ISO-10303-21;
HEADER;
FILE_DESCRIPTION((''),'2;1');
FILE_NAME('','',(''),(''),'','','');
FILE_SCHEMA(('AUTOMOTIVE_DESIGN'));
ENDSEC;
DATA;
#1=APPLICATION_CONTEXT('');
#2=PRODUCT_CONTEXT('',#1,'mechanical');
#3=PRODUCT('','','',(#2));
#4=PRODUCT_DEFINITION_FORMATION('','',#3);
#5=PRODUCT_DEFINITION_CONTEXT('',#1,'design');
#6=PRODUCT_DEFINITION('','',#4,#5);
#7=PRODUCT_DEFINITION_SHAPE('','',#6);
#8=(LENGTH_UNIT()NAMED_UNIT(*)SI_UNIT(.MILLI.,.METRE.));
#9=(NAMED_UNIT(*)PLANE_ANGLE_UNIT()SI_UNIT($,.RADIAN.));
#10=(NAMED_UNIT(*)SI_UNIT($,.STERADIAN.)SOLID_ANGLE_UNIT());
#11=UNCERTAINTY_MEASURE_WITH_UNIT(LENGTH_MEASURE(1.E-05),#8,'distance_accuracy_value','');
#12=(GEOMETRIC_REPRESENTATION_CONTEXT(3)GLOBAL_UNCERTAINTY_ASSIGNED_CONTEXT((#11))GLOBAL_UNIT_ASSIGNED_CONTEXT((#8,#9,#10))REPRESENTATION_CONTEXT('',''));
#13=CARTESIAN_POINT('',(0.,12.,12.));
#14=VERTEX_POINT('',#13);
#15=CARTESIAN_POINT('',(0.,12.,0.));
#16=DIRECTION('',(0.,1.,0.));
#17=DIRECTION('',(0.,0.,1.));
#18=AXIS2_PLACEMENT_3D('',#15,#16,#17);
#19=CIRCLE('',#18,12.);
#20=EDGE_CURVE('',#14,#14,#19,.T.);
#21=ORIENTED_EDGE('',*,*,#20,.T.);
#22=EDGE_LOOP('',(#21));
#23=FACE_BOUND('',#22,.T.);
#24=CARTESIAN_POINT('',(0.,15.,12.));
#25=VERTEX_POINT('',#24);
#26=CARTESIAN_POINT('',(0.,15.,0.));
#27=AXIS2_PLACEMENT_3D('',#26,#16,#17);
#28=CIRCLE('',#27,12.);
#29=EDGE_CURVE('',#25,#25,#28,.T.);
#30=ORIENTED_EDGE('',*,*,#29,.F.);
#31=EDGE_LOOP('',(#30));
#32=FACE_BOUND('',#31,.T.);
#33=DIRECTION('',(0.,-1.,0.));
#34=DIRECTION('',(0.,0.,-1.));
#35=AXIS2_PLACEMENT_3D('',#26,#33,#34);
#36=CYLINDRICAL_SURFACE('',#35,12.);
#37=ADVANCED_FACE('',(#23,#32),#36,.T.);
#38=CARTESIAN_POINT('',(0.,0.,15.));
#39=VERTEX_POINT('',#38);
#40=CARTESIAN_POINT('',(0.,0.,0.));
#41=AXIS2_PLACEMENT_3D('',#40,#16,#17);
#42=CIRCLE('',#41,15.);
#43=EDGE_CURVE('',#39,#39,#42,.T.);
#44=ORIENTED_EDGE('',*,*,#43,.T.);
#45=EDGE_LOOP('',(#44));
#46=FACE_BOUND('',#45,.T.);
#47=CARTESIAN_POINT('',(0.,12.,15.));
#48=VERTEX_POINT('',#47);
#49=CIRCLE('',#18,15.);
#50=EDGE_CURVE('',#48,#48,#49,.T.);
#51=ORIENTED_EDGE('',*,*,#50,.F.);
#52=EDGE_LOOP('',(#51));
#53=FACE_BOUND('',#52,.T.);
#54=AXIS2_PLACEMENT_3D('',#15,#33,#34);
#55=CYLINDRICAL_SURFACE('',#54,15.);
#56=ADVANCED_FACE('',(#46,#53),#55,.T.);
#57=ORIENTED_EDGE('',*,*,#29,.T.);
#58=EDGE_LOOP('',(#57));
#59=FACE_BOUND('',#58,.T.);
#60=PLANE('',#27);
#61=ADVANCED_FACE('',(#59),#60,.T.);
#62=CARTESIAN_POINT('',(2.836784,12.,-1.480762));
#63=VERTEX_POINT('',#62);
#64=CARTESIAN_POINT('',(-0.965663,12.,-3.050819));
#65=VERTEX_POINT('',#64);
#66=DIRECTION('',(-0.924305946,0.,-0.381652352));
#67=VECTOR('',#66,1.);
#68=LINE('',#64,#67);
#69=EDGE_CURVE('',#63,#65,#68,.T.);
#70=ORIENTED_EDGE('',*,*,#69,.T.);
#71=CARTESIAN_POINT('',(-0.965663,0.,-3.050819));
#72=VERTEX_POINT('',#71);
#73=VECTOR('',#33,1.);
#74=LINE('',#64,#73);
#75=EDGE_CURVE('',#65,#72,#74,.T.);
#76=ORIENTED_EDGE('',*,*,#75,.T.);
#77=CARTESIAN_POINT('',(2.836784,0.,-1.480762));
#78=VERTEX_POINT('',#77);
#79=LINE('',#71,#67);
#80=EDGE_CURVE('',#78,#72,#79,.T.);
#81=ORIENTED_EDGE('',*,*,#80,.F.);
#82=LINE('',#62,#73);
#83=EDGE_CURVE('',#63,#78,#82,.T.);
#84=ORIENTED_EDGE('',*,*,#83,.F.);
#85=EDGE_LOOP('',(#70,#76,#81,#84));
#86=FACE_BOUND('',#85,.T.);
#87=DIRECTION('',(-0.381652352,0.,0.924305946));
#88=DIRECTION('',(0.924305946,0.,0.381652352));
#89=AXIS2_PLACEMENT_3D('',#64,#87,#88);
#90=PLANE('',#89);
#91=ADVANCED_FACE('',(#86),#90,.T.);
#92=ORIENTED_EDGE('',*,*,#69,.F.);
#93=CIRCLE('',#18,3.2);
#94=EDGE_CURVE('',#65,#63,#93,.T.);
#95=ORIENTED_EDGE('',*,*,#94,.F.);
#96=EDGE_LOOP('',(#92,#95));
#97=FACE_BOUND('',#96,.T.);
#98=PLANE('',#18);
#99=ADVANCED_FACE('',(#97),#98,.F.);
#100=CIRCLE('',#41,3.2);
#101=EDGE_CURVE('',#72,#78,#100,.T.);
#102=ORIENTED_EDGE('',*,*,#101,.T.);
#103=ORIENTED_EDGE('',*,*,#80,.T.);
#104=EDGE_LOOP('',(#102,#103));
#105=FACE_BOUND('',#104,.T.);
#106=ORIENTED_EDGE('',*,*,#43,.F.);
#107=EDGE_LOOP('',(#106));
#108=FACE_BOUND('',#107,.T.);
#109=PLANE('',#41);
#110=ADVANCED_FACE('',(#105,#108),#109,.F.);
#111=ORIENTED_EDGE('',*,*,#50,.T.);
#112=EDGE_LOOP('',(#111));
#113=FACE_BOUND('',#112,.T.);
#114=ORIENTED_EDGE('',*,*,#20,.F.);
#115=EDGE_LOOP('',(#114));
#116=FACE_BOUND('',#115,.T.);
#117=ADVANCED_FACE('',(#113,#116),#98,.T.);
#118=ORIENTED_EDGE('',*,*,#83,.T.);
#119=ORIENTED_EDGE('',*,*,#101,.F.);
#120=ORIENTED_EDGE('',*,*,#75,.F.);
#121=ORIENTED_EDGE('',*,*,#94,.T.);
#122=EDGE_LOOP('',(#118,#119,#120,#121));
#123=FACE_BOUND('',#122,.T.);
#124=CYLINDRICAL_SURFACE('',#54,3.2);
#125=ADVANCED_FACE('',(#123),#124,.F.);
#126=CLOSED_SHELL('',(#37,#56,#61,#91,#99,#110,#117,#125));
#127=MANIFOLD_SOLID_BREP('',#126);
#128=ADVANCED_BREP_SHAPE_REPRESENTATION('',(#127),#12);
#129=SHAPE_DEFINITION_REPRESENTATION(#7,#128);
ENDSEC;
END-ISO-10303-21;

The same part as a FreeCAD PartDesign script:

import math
import FreeCAD as App
import Part
import Sketcher
Q = App.Units.Quantity

doc = App.newDocument("Part")
body = doc.addObject("PartDesign::Body", "Body")

# Sketch on XZ plane
sketch1 = doc.addObject("Sketcher::SketchObject", "Sketch")
body.addObject(sketch1)
sketch1.AttachmentSupport = (doc.XZ_Plane, [""])
sketch1.MapMode = "FlatFace"
sketch1.addGeometry([
    Part.Circle(App.Vector(0, 0, 0), App.Vector(0, 0, 1), 15),
    Part.ArcOfCircle(Part.Circle(App.Vector(0, 0, 0), App.Vector(0, 0, 1), 3.2), math.radians(-28), math.radians(252)),
    Part.LineSegment(App.Vector(-1, -3.1, 0), App.Vector(2.8, -1.5, 0)),
], False)
sketch1.addConstraint([
    Sketcher.Constraint("Coincident", 1, 1, 2, 2),
    Sketcher.Constraint("Coincident", 2, 1, 1, 2),
    Sketcher.Constraint("Coincident", 0, 3, -1, 1),
    Sketcher.Constraint("Coincident", 1, 3, -1, 1),
    Sketcher.Constraint("Diameter", 0, Q("30 mm")),
    Sketcher.Constraint("Radius", 1, Q("3.2 mm")),
    Sketcher.Constraint("Distance", 2, Q("4.113841 mm")),
    Sketcher.Constraint("DistanceY", 1, 1, -1, 1, Q("1.480762 mm")),
])
pad1 = doc.addObject("PartDesign::Pad", "Pad")
body.addObject(pad1)
pad1.Profile = sketch1
pad1.Length = 12
pad1.Reversed = True

# Sketch on XZ plane
sketch2 = doc.addObject("Sketcher::SketchObject", "Sketch001")
body.addObject(sketch2)
sketch2.AttachmentSupport = (doc.XZ_Plane, [""])
sketch2.MapMode = "FlatFace"
sketch2.AttachmentOffset = App.Placement(App.Vector(0, 0, -12), App.Rotation())
sketch2.addGeometry(Part.Circle(App.Vector(0, 0, 0), App.Vector(0, 0, 1), 12), False)
sketch2.addConstraint([
    Sketcher.Constraint("Coincident", 0, 3, -1, 1),
    Sketcher.Constraint("Diameter", 0, Q("24 mm")),
])
pad2 = doc.addObject("PartDesign::Pad", "Pad001")
body.addObject(pad2)
pad2.Profile = sketch2
pad2.Length = 3
pad2.Reversed = True

doc.recompute()
